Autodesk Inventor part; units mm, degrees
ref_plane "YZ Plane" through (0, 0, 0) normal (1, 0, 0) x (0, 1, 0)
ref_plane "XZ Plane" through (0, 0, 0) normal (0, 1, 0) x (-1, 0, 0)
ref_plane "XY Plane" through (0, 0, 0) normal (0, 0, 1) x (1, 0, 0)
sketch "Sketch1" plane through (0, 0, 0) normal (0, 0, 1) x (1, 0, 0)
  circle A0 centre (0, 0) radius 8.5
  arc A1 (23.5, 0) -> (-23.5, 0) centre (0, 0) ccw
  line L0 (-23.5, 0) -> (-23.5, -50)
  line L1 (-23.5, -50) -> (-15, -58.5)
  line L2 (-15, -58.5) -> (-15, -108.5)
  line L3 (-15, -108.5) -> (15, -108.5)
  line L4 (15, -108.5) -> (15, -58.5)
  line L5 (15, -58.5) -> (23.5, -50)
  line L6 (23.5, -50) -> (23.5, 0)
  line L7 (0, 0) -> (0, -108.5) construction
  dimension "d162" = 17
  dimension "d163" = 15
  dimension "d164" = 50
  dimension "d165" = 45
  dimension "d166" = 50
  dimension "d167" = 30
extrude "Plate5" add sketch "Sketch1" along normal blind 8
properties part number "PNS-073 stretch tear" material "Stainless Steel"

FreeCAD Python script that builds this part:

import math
import FreeCAD as App
import Part
import Sketcher
from FreeCAD import Vector

doc = App.newDocument("Part")
body = doc.addObject("PartDesign::Body", "Body")

# Sketch on XY plane
sketch1 = doc.addObject("Sketcher::SketchObject", "Sketch")
body.addObject(sketch1)
sketch1.AttachmentSupport = (doc.XY_Plane, [""])
sketch1.MapMode = "FlatFace"
sketch1.addGeometry(Part.LineSegment(Vector(23.5, -50, 0), Vector(23.5, 0, 0)), False)
sketch1.addGeometry(Part.ArcOfCircle(Part.Circle(Vector(0, 0, 0), Vector(0, 0, 1), 23.5), math.radians(0), math.radians(180)), False)
sketch1.addGeometry(Part.LineSegment(Vector(-23.5, 0, 0), Vector(-23.5, -50, 0)), False)
sketch1.addGeometry(Part.LineSegment(Vector(-23.5, -50, 0), Vector(-15, -58.5, 0)), False)
sketch1.addGeometry(Part.LineSegment(Vector(-15, -58.5, 0), Vector(-15, -108.5, 0)), False)
sketch1.addGeometry(Part.LineSegment(Vector(-15, -108.5, 0), Vector(15, -108.5, 0)), False)
sketch1.addGeometry(Part.LineSegment(Vector(15, -108.5, 0), Vector(15, -58.5, 0)), False)
sketch1.addGeometry(Part.LineSegment(Vector(15, -58.5, 0), Vector(23.5, -50, 0)), False)
sketch1.addGeometry(Part.Circle(Vector(0, 0, 0), Vector(0, 0, 1), 8.5), False)
sketch1.addConstraint(Sketcher.Constraint("Tangent", 0, 2, 1, 1))
sketch1.addConstraint(Sketcher.Constraint("Tangent", 1, 2, 2, 1))
sketch1.addConstraint(Sketcher.Constraint("Coincident", 2, 2, 3, 1))
sketch1.addConstraint(Sketcher.Constraint("Coincident", 3, 2, 4, 1))
sketch1.addConstraint(Sketcher.Constraint("Coincident", 4, 2, 5, 1))
sketch1.addConstraint(Sketcher.Constraint("Coincident", 5, 2, 6, 1))
sketch1.addConstraint(Sketcher.Constraint("Coincident", 6, 2, 7, 1))
sketch1.addConstraint(Sketcher.Constraint("Coincident", 7, 2, 0, 1))
sketch1.addConstraint(Sketcher.Constraint("Vertical", 0))
sketch1.addConstraint(Sketcher.Constraint("Vertical", 2))
sketch1.addConstraint(Sketcher.Constraint("Vertical", 4))
sketch1.addConstraint(Sketcher.Constraint("Horizontal", 5))
sketch1.addConstraint(Sketcher.Constraint("Vertical", 6))
sketch1.addConstraint(Sketcher.Constraint("Coincident", 1, 3, -1, 1))
sketch1.addConstraint(Sketcher.Constraint("Coincident", 8, 3, -1, 1))
sketch1.addConstraint(Sketcher.Constraint("Symmetric", 3, 2, 6, 2, -2))
sketch1.addConstraint(Sketcher.Constraint("Perpendicular", 3, 7))
sketch1.addConstraint(Sketcher.Constraint("Horizontal", 2, 2, 7, 2))
sketch1.addConstraint(Sketcher.Constraint("Equal", 2, 4))
sketch1.addConstraint(Sketcher.Constraint("Diameter", 8, 17.0))
sketch1.addConstraint(Sketcher.Constraint("DistanceX", 5, 1, 5, 2, 30.0))
sketch1.addConstraint(Sketcher.Constraint("DistanceY", 0, 1, 0, 2, 50.0))
sketch1.addConstraint(Sketcher.Constraint("Radius", 1, 23.5))
pad1 = doc.addObject("PartDesign::Pad", "Pad")
body.addObject(pad1)
pad1.Profile = sketch1
pad1.Length = 8

doc.recompute()
